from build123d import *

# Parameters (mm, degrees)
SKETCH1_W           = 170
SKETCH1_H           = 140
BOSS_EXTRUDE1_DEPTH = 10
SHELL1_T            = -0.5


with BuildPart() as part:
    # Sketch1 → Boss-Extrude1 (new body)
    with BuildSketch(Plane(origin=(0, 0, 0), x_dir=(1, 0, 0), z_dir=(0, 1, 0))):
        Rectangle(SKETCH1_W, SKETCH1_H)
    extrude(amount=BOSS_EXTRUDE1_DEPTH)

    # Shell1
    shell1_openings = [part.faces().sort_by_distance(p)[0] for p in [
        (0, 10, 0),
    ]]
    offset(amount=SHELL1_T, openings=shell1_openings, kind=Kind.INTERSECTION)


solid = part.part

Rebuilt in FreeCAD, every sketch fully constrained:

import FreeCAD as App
import Part
import Sketcher
from FreeCAD import Vector


def faces_at(feature, points):
    """Names of the faces that lie closest to the given points."""
    faces = feature.Shape.Faces
    near = lambda p: min(range(len(faces)), key=lambda i: faces[i].distToShape(Part.Vertex(*p))[0])
    return sorted({f"Face{near(p) + 1}" for p in points})

doc = App.newDocument("Part")
params = doc.addObject("Spreadsheet::Sheet", "Params")
for row, (alias, value) in enumerate([
    ("sketch1_width", "170 mm"),
    ("sketch1_height", "140 mm"),
    ("pad1_length", "10 mm"),
    ("thickness_wall", "0.5 mm"),
], start=1):
    params.set(f"A{row}", alias)
    params.set(f"B{row}", "=" + value)
    params.setAlias(f"B{row}", alias)

body = doc.addObject("PartDesign::Body", "Body")

# Sketch on XZ plane
sketch1 = doc.addObject("Sketcher::SketchObject", "Sketch")
body.addObject(sketch1)
sketch1.AttachmentSupport = (doc.XZ_Plane, [""])
sketch1.MapMode = "FlatFace"
sketch1.addGeometry(Part.LineSegment(Vector(-85, -70, 0), Vector(-85, 70, 0)), False)
sketch1.addGeometry(Part.LineSegment(Vector(-85, 70, 0), Vector(85, 70, 0)), False)
sketch1.addGeometry(Part.LineSegment(Vector(85, 70, 0), Vector(85, -70, 0)), False)
sketch1.addGeometry(Part.LineSegment(Vector(85, -70, 0), Vector(-85, -70, 0)), False)
sketch1.addConstraint(Sketcher.Constraint("Coincident", 0, 2, 1, 1))
sketch1.addConstraint(Sketcher.Constraint("Coincident", 1, 2, 2, 1))
sketch1.addConstraint(Sketcher.Constraint("Coincident", 2, 2, 3, 1))
sketch1.addConstraint(Sketcher.Constraint("Coincident", 3, 2, 0, 1))
sketch1.addConstraint(Sketcher.Constraint("Vertical", 0))
sketch1.addConstraint(Sketcher.Constraint("Horizontal", 1))
sketch1.addConstraint(Sketcher.Constraint("Vertical", 2))
sketch1.addConstraint(Sketcher.Constraint("Horizontal", 3))
sketch1.addConstraint(Sketcher.Constraint("Symmetric", 0, 2, 2, 2, -1, 1))
sketch1.addConstraint(Sketcher.Constraint("DistanceX", 1, 1, 1, 2, 170.0))
sketch1.addConstraint(Sketcher.Constraint("DistanceY", 0, 1, 0, 2, 140.0))
sketch1.setExpression("Constraints[9]", "Params.sketch1_width")
sketch1.setExpression("Constraints[10]", "Params.sketch1_height")
pad1 = doc.addObject("PartDesign::Pad", "Pad")
body.addObject(pad1)
pad1.Profile = sketch1
pad1.setExpression("Length", "Params.pad1_length")
pad1.Reversed = True
doc.recompute()

thickness = doc.addObject("PartDesign::Thickness", "Thickness")
body.addObject(thickness)
thickness.Base = (pad1, faces_at(pad1, [(0, 10, 0)]))
thickness.setExpression("Value", "Params.thickness_wall")
thickness.Reversed = True
thickness.Join = "Intersection"

doc.recompute()
